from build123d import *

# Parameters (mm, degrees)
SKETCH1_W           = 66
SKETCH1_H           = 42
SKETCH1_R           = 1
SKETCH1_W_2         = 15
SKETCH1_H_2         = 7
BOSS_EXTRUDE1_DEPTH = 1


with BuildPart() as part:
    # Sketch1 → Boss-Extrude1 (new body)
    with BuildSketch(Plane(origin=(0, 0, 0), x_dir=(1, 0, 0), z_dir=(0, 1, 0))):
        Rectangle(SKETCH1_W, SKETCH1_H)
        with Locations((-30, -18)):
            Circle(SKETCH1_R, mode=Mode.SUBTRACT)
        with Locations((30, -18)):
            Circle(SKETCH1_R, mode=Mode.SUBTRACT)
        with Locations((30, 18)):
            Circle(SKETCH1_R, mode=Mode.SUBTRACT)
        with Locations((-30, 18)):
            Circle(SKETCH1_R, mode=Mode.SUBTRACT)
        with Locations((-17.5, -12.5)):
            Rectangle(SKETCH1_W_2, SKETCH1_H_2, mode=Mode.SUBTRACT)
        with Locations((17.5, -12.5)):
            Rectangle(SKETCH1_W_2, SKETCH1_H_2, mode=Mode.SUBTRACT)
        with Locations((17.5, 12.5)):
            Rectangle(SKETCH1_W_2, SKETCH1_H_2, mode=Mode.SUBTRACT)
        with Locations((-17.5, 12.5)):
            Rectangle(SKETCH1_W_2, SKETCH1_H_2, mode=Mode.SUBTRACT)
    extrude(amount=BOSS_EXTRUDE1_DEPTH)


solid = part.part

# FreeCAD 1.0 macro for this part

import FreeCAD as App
import Part
import Sketcher

V = App.Vector


def add_polygon(sketch, points):
    """Adds a closed chain of lines whose ends are joined by coincident constraints."""
    first, n = sketch.GeometryCount, len(points)
    for a, b in zip(points, points[1:] + points[:1]):
        sketch.addGeometry(Part.LineSegment(App.Vector(*a, 0), App.Vector(*b, 0)), False)
    for i in range(n):
        sketch.addConstraint(Sketcher.Constraint("Coincident", first + i, 2, first + (i + 1) % n, 1))

doc = App.newDocument("Part")
params = doc.addObject("Spreadsheet::Sheet", "Params")
for row, (alias, value) in enumerate([
    ("sketch1_diameter", "2 mm"),
    ("sketch1_width", "66 mm"),
    ("sketch1_width2", "15 mm"),
    ("sketch1_height", "42 mm"),
    ("sketch1_height2", "7 mm"),
    ("pad1_length", "1 mm"),
], start=1):
    params.set(f"A{row}", alias)
    params.set(f"B{row}", "=" + value)
    params.setAlias(f"B{row}", alias)

body = doc.addObject("PartDesign::Body", "Body")

# Sketch on XZ plane
sketch1 = body.newObject("Sketcher::SketchObject", "Sketch")
sketch1.AttachmentSupport = (doc.getObject("XZ_Plane"), [""])
sketch1.MapMode = "FlatFace"
add_polygon(sketch1, [(-33, -21), (-33, 21), (33, 21), (33, -21)])  # lines 0-3
sketch1.addGeometry(Part.Circle(V(-30, 18, 0), V(0, 0, 1), 1), False)  # 4
add_polygon(sketch1, [(-10, 16), (-25, 16), (-25, 9), (-10, 9)])  # lines 5-8
sketch1.addGeometry(Part.Circle(V(30, 18, 0), V(0, 0, 1), 1), False)  # 9
add_polygon(sketch1, [(25, 16), (10, 16), (10, 9), (25, 9)])  # lines 10-13
add_polygon(sketch1, [(-10, -9), (-25, -9), (-25, -16), (-10, -16)])  # lines 14-17
sketch1.addGeometry(Part.Circle(V(-30, -18, 0), V(0, 0, 1), 1), False)  # 18
add_polygon(sketch1, [(25, -9), (10, -9), (10, -16), (25, -16)])  # lines 19-22
sketch1.addGeometry(Part.Circle(V(30, -18, 0), V(0, 0, 1), 1), False)  # 23
sketch1.addConstraint([
    Sketcher.Constraint("Vertical", 0),
    Sketcher.Constraint("Horizontal", 1),
    Sketcher.Constraint("Vertical", 2),
    Sketcher.Constraint("Horizontal", 3),
    Sketcher.Constraint("Horizontal", 5),
    Sketcher.Constraint("Vertical", 6),
    Sketcher.Constraint("Horizontal", 7),
    Sketcher.Constraint("Vertical", 8),
    Sketcher.Constraint("Horizontal", 10),
    Sketcher.Constraint("Vertical", 11),
    Sketcher.Constraint("Horizontal", 12),
    Sketcher.Constraint("Vertical", 13),
    Sketcher.Constraint("Horizontal", 14),
    Sketcher.Constraint("Vertical", 15),
    Sketcher.Constraint("Horizontal", 16),
    Sketcher.Constraint("Vertical", 17),
    Sketcher.Constraint("Horizontal", 19),
    Sketcher.Constraint("Vertical", 20),
    Sketcher.Constraint("Horizontal", 21),
    Sketcher.Constraint("Vertical", 22),
    Sketcher.Constraint("Equal", 4, 9),
    Sketcher.Constraint("Equal", 9, 18),
    Sketcher.Constraint("Equal", 18, 23),
    Sketcher.Constraint("Symmetric", 9, 3, 18, 3, -1, 1),
    Sketcher.Constraint("Symmetric", 4, 3, 23, 3, -1, 1),
    Sketcher.Constraint("Symmetric", 0, 2, 2, 2, -1, 1),
    Sketcher.Constraint("Symmetric", 12, 2, 14, 2, -1, 1),
    Sketcher.Constraint("Symmetric", 10, 2, 16, 2, -1, 1),
    Sketcher.Constraint("Symmetric", 7, 2, 19, 2, -1, 1),
    Sketcher.Constraint("Symmetric", 5, 2, 21, 2, -1, 1),
    Sketcher.Constraint("Symmetric", 4, 3, 9, 3, -2),
    Sketcher.Constraint("Symmetric", 8, 2, 10, 2, -2),
    Sketcher.Constraint("Symmetric", 6, 2, 12, 2, -2),
    Sketcher.Constraint("Diameter", 4, 2.0),
    Sketcher.Constraint("DistanceX", 1, 1, 1, 2, 66.0),
    Sketcher.Constraint("DistanceX", 5, 2, 5, 1, 15.0),
    Sketcher.Constraint("DistanceY", 0, 1, 0, 2, 42.0),
    Sketcher.Constraint("DistanceY", 6, 2, 6, 1, 7.0),
    Sketcher.Constraint("DistanceX", 4, 3, -1, 1, 30.0),
    Sketcher.Constraint("DistanceY", -1, 1, 4, 3, 18.0),
    Sketcher.Constraint("DistanceX", 5, 2, -1, 1, 25.0),
    Sketcher.Constraint("DistanceY", -1, 1, 5, 2, 16.0),
])
sketch1.setExpression("Constraints[53]", "Params.sketch1_diameter")
sketch1.setExpression("Constraints[54]", "Params.sketch1_width")
sketch1.setExpression("Constraints[55]", "Params.sketch1_width2")
sketch1.setExpression("Constraints[56]", "Params.sketch1_height")
sketch1.setExpression("Constraints[57]", "Params.sketch1_height2")
pad1 = body.newObject("PartDesign::Pad", "Pad")
pad1.Profile = sketch1
pad1.setExpression("Length", "Params.pad1_length")
pad1.Reversed = True

doc.recompute()
